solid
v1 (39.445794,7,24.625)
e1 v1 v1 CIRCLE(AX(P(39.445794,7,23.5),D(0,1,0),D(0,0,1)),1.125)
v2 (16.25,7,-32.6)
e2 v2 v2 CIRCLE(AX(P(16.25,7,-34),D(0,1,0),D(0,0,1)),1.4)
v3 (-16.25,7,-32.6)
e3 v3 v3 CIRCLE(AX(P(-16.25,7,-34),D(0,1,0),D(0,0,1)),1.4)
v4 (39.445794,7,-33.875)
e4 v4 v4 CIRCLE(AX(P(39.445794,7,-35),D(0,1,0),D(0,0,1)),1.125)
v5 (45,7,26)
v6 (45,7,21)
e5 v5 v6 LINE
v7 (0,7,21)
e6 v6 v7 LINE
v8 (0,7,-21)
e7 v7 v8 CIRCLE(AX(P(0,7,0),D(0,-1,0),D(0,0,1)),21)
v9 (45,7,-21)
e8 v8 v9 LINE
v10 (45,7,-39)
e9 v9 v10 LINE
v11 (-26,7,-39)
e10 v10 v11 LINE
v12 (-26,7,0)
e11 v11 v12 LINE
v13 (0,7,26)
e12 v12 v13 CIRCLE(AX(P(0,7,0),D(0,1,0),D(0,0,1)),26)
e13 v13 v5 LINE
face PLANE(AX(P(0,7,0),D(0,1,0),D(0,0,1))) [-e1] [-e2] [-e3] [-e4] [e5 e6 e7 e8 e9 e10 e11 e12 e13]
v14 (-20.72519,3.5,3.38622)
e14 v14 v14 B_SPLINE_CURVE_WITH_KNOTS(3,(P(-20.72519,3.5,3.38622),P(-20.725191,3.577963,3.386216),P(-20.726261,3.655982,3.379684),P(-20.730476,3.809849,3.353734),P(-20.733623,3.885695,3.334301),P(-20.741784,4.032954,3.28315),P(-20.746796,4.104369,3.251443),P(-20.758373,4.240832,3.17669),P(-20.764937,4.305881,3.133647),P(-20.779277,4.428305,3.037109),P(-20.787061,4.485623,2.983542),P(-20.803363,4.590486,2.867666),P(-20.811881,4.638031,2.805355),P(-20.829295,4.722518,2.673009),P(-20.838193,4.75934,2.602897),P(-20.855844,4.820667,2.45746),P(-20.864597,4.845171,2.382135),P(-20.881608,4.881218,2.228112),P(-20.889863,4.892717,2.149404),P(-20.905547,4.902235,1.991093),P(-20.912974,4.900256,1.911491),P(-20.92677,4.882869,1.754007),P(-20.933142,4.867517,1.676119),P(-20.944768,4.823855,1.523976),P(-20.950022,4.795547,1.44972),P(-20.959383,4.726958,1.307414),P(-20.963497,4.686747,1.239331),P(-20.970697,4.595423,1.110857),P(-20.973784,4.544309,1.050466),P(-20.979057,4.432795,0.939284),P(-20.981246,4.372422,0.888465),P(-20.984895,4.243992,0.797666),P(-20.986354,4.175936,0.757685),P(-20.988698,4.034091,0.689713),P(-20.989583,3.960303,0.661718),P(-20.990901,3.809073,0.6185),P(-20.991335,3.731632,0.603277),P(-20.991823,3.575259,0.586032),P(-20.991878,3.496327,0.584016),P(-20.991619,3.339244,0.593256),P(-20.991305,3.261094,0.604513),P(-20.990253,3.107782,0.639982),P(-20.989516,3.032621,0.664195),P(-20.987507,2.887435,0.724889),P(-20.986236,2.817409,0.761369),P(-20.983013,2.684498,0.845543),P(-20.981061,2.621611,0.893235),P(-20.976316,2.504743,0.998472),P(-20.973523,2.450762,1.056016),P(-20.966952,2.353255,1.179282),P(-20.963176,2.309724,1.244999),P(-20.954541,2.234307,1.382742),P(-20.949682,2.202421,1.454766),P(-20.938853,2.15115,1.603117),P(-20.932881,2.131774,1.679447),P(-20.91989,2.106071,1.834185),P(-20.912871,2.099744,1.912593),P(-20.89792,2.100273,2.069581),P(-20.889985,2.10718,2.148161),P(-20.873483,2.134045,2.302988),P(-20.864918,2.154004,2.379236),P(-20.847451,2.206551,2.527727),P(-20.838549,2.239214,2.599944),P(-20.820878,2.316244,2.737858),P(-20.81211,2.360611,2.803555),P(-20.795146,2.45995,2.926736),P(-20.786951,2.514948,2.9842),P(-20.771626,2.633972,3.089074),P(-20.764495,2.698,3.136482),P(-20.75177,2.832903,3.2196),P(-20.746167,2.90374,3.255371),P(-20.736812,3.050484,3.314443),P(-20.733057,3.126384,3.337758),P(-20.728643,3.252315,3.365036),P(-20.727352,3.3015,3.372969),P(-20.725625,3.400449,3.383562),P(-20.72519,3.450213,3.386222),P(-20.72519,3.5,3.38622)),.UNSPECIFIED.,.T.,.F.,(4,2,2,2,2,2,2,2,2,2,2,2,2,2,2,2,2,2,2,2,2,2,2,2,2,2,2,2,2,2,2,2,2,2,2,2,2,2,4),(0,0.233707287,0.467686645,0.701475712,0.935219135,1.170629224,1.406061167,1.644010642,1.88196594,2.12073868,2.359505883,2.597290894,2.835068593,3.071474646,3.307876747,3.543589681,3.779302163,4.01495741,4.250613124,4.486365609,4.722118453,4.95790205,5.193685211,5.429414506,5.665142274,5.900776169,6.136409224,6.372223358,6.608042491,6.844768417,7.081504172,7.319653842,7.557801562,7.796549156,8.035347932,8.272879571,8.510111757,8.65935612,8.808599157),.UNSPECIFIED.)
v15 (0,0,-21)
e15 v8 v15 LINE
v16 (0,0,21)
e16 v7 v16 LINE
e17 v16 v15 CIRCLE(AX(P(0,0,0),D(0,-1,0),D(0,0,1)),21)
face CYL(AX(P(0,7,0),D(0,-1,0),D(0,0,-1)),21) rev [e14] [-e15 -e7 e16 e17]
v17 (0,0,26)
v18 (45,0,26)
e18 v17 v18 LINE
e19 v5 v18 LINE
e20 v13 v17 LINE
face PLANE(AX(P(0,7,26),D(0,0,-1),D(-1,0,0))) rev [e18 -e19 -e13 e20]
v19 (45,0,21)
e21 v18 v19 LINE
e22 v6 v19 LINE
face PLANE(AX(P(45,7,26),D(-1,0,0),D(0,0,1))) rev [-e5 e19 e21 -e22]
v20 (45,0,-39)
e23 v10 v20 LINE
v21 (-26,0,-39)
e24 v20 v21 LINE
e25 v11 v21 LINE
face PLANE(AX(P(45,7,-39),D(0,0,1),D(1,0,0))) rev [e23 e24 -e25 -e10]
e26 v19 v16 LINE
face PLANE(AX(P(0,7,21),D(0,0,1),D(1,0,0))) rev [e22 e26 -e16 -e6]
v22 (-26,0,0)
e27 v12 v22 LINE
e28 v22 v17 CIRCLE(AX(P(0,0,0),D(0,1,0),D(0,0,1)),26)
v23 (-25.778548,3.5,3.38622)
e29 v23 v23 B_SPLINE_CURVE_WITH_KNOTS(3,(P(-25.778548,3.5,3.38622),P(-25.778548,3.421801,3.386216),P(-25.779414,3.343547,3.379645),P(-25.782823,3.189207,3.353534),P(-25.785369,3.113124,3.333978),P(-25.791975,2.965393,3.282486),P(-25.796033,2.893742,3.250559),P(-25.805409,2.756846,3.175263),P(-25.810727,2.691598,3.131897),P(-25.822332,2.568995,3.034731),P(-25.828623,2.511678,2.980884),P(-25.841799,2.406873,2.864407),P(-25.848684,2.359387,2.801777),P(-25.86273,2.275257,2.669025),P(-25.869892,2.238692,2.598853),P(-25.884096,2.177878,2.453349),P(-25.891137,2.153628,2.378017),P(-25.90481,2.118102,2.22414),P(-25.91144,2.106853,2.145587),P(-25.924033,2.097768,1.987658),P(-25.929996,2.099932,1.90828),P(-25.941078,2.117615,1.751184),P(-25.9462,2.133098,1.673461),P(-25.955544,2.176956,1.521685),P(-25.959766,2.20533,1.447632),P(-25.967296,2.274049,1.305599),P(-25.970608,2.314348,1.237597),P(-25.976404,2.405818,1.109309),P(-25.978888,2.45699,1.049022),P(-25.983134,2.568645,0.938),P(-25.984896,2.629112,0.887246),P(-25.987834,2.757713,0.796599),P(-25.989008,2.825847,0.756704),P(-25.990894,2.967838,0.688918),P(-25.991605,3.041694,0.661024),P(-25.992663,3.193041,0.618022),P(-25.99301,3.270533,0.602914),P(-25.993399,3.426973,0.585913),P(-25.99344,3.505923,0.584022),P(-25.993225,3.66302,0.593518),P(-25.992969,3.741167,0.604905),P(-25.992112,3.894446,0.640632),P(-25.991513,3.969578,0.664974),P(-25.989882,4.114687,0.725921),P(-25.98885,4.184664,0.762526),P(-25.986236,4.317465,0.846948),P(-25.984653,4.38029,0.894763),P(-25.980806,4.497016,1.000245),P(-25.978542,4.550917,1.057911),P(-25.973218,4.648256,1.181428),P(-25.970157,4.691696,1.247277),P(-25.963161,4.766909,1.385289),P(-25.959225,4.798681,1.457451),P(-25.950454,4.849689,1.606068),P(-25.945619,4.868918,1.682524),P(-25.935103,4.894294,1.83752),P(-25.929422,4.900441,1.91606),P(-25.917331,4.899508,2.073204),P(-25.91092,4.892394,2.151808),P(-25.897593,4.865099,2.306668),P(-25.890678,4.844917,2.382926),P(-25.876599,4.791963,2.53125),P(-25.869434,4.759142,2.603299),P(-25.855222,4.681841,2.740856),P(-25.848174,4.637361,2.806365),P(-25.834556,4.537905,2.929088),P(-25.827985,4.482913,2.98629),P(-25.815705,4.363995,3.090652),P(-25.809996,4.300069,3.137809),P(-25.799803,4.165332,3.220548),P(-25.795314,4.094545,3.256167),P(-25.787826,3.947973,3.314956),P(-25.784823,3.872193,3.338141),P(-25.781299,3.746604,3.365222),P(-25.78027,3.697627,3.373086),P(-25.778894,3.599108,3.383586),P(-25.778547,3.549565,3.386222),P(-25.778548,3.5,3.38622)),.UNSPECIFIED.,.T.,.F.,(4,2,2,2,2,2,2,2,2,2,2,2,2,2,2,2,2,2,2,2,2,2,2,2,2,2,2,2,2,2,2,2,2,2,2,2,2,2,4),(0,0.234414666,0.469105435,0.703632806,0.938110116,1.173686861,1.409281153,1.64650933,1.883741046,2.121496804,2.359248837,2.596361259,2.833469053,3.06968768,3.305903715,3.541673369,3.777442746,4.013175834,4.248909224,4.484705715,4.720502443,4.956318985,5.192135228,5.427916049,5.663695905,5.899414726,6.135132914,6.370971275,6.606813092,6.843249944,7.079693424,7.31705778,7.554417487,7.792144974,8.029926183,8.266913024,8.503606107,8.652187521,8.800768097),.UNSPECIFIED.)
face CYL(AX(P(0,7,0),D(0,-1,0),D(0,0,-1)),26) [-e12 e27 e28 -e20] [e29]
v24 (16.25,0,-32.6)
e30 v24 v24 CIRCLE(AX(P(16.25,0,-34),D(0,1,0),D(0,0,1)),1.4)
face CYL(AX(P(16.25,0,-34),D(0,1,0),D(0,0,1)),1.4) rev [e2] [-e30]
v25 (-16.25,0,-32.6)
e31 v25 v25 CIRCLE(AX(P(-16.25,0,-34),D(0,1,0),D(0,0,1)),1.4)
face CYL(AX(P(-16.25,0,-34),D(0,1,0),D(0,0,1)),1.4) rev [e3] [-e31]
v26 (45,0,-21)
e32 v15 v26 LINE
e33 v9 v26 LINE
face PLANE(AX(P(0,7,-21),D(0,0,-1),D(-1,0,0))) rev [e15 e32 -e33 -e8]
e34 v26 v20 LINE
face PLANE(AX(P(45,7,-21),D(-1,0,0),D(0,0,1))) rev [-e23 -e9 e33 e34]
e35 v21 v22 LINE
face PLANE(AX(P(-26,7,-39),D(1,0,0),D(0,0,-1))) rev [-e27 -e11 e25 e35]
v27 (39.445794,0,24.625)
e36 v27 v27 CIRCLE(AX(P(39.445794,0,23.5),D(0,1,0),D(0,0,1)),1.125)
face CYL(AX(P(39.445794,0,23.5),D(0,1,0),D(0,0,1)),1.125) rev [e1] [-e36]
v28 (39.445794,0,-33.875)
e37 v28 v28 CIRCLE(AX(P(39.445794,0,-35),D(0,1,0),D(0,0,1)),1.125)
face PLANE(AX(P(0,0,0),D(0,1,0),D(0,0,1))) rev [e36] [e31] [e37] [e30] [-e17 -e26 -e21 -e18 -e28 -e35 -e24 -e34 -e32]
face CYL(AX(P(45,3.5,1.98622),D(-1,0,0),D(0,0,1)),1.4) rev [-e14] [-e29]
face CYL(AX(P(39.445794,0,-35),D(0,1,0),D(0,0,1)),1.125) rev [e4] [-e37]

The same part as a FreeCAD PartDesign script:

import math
import FreeCAD as App
import Part
import Sketcher

doc = App.newDocument("Part")
body = doc.addObject("PartDesign::Body", "Body")

# Sketch on XZ plane
sketch1 = body.newObject("Sketcher::SketchObject", "Sketch")
sketch1.AttachmentSupport = (doc.getObject("XZ_Plane"), [""])
sketch1.MapMode = "FlatFace"
sketch1.addGeometry(Part.LineSegment(App.Vector(0, -21, 0), App.Vector(45, -21, 0)), False)
sketch1.addGeometry(Part.LineSegment(App.Vector(45, -21, 0), App.Vector(45, -39, 0)), False)
sketch1.addGeometry(Part.LineSegment(App.Vector(45, -39, 0), App.Vector(-26, -39, 0)), False)
sketch1.addGeometry(Part.LineSegment(App.Vector(-26, -39, 0), App.Vector(-26, 0, 0)), False)
sketch1.addGeometry(Part.ArcOfCircle(Part.Circle(App.Vector(0, 0, 0), App.Vector(0, 0, 1), 26), math.radians(90), math.radians(180)), False)
sketch1.addGeometry(Part.LineSegment(App.Vector(0, 26, 0), App.Vector(45, 26, 0)), False)
sketch1.addGeometry(Part.LineSegment(App.Vector(45, 26, 0), App.Vector(45, 21, 0)), False)
sketch1.addGeometry(Part.LineSegment(App.Vector(45, 21, 0), App.Vector(0, 21, 0)), False)
sketch1.addGeometry(Part.ArcOfCircle(Part.Circle(App.Vector(0, 0, 0), App.Vector(0, 0, 1), 21), math.radians(90), math.radians(270)), False)
sketch1.addConstraint(Sketcher.Constraint("Coincident", 0, 2, 1, 1))
sketch1.addConstraint(Sketcher.Constraint("Coincident", 1, 2, 2, 1))
sketch1.addConstraint(Sketcher.Constraint("Coincident", 2, 2, 3, 1))
sketch1.addConstraint(Sketcher.Constraint("Tangent", 3, 2, 4, 2))
sketch1.addConstraint(Sketcher.Constraint("Tangent", 4, 1, 5, 1))
sketch1.addConstraint(Sketcher.Constraint("Coincident", 5, 2, 6, 1))
sketch1.addConstraint(Sketcher.Constraint("Coincident", 6, 2, 7, 1))
sketch1.addConstraint(Sketcher.Constraint("Tangent", 7, 2, 8, 1))
sketch1.addConstraint(Sketcher.Constraint("Tangent", 8, 2, 0, 1))
sketch1.addConstraint(Sketcher.Constraint("Horizontal", 0))
sketch1.addConstraint(Sketcher.Constraint("Vertical", 1))
sketch1.addConstraint(Sketcher.Constraint("Horizontal", 2))
sketch1.addConstraint(Sketcher.Constraint("Vertical", 3))
sketch1.addConstraint(Sketcher.Constraint("Horizontal", 5))
sketch1.addConstraint(Sketcher.Constraint("Vertical", 6))
sketch1.addConstraint(Sketcher.Constraint("Horizontal", 7))
sketch1.addConstraint(Sketcher.Constraint("Coincident", 4, 3, -1, 1))
sketch1.addConstraint(Sketcher.Constraint("Coincident", 8, 3, -1, 1))
sketch1.addConstraint(Sketcher.Constraint("Vertical", 1, 2, 5, 2))
sketch1.addConstraint(Sketcher.Constraint("Radius", 4, 26.0))
sketch1.addConstraint(Sketcher.Constraint("Radius", 8, 21.0))
sketch1.addConstraint(Sketcher.Constraint("DistanceX", 0, 1, 0, 2, 45.0))
sketch1.addConstraint(Sketcher.Constraint("DistanceY", 1, 2, 1, 1, 18.0))
pad1 = body.newObject("PartDesign::Pad", "Pad")
pad1.Profile = sketch1
pad1.Length = 7
pad1.Reversed = True

# Sketch on XZ plane
sketch2 = body.newObject("Sketcher::SketchObject", "Sketch001")
sketch2.AttachmentSupport = (doc.getObject("XZ_Plane"), [""])
sketch2.MapMode = "FlatFace"
sketch2.AttachmentOffset = App.Placement(App.Vector(0, 0, -7), App.Rotation())
sketch2.addGeometry(Part.Circle(App.Vector(39.445794, -35, 0), App.Vector(0, 0, 1), 1.125), False)
sketch2.addGeometry(Part.Circle(App.Vector(39.445794, 23.5, 0), App.Vector(0, 0, 1), 1.125), False)
sketch2.addConstraint(Sketcher.Constraint("Equal", 0, 1))
sketch2.addConstraint(Sketcher.Constraint("Vertical", 0, 3, 1, 3))
sketch2.addConstraint(Sketcher.Constraint("Diameter", 0, 2.25))
sketch2.addConstraint(Sketcher.Constraint("DistanceY", 0, 3, -1, 1, 35.0))
sketch2.addConstraint(Sketcher.Constraint("DistanceY", -1, 1, 1, 3, 23.5))
sketch2.addConstraint(Sketcher.Constraint("DistanceX", -1, 1, 0, 3, 39.445794))
pocket1 = body.newObject("PartDesign::Pocket", "Pocket")
pocket1.Profile = sketch2
pocket1.Type = "ThroughAll"
pocket1.Midplane = True

# Sketch on YZ plane
sketch3 = body.newObject("Sketcher::SketchObject", "Sketch002")
sketch3.AttachmentSupport = (doc.getObject("YZ_Plane"), [""])
sketch3.MapMode = "FlatFace"
sketch3.AttachmentOffset = App.Placement(App.Vector(0, 0, -26), App.Rotation())
sketch3.addGeometry(Part.Circle(App.Vector(3.5, 1.98622, 0), App.Vector(0, 0, 1), 1.4), False)
sketch3.addConstraint(Sketcher.Constraint("Diameter", 0, 2.8))
sketch3.addConstraint(Sketcher.Constraint("DistanceX", -1, 1, 0, 3, 3.5))
sketch3.addConstraint(Sketcher.Constraint("DistanceY", -1, 1, 0, 3, 1.98622))
pocket2 = body.newObject("PartDesign::Pocket", "Pocket001")
pocket2.Profile = sketch3
pocket2.Type = "ThroughAll"
pocket2.Reversed = True

# Sketch on XZ plane
sketch4 = body.newObject("Sketcher::SketchObject", "Sketch003")
sketch4.AttachmentSupport = (doc.getObject("XZ_Plane"), [""])
sketch4.MapMode = "FlatFace"
sketch4.AttachmentOffset = App.Placement(App.Vector(0, 0, -7), App.Rotation())
sketch4.addGeometry(Part.Circle(App.Vector(16.25, -34, 0), App.Vector(0, 0, 1), 1.4), False)
sketch4.addGeometry(Part.Circle(App.Vector(-16.25, -34, 0), App.Vector(0, 0, 1), 1.4), False)
sketch4.addConstraint(Sketcher.Constraint("Equal", 0, 1))
sketch4.addConstraint(Sketcher.Constraint("Symmetric", 0, 3, 1, 3, -2))
sketch4.addConstraint(Sketcher.Constraint("Diameter", 0, 2.8))
sketch4.addConstraint(Sketcher.Constraint("DistanceY", 0, 3, -1, 1, 34.0))
sketch4.addConstraint(Sketcher.Constraint("DistanceX", 1, 3, 0, 3, 32.5))
pocket3 = body.newObject("PartDesign::Pocket", "Pocket002")
pocket3.Profile = sketch4
pocket3.Type = "ThroughAll"
pocket3.Reversed = True

doc.recompute()
